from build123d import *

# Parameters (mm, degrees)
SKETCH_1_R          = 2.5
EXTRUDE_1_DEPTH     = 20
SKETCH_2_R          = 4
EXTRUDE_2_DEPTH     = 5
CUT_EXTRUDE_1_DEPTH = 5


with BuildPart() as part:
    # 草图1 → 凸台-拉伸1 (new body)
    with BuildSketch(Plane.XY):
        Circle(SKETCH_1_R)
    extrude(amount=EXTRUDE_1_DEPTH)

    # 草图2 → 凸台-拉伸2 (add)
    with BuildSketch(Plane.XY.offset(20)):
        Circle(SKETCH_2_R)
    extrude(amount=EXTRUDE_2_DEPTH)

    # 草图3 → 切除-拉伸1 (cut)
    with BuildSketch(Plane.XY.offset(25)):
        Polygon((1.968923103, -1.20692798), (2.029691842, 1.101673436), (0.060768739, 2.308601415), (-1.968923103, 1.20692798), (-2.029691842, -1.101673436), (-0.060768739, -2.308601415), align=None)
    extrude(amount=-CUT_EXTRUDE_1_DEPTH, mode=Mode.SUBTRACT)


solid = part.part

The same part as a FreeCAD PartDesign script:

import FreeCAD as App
import Part
import Sketcher
from FreeCAD import Vector

doc = App.newDocument("Part")
body = doc.addObject("PartDesign::Body", "Body")

# Sketch on XY plane
sketch1 = body.newObject("Sketcher::SketchObject", "Sketch")
sketch1.AttachmentSupport = (doc.getObject("XY_Plane"), [""])
sketch1.MapMode = "FlatFace"
sketch1.addGeometry(Part.Circle(Vector(0, 0, 0), Vector(0, 0, 1), 2.5), False)
sketch1.addConstraint([
    Sketcher.Constraint("Coincident", 0, 3, -1, 1),
    Sketcher.Constraint("Diameter", 0, 5.0),
])
pad1 = body.newObject("PartDesign::Pad", "Pad")
pad1.Profile = sketch1
pad1.Length = 20

# Sketch on XY plane
sketch2 = body.newObject("Sketcher::SketchObject", "Sketch001")
sketch2.AttachmentSupport = (doc.getObject("XY_Plane"), [""])
sketch2.MapMode = "FlatFace"
sketch2.AttachmentOffset = App.Placement(Vector(0, 0, 20), App.Rotation())
sketch2.addGeometry(Part.Circle(Vector(0, 0, 0), Vector(0, 0, 1), 4), False)
sketch2.addConstraint([
    Sketcher.Constraint("Coincident", 0, 3, -1, 1),
    Sketcher.Constraint("Diameter", 0, 8.0),
])
pad2 = body.newObject("PartDesign::Pad", "Pad001")
pad2.Profile = sketch2
pad2.Length = 5

# Sketch on XY plane
sketch3 = body.newObject("Sketcher::SketchObject", "Sketch002")
sketch3.AttachmentSupport = (doc.getObject("XY_Plane"), [""])
sketch3.MapMode = "FlatFace"
sketch3.AttachmentOffset = App.Placement(Vector(0, 0, 25), App.Rotation())
sketch3.addGeometry([
    Part.LineSegment(Vector(1.968923, -1.206928, 0), Vector(2.029692, 1.101673, 0)),  # 0
    Part.LineSegment(Vector(2.029692, 1.101673, 0), Vector(0.060769, 2.308601, 0)),  # 1
    Part.LineSegment(Vector(0.060769, 2.308601, 0), Vector(-1.968923, 1.206928, 0)),  # 2
    Part.LineSegment(Vector(-1.968923, 1.206928, 0), Vector(-2.029692, -1.101673, 0)),  # 3
    Part.LineSegment(Vector(-2.029692, -1.101673, 0), Vector(-0.060769, -2.308601, 0)),  # 4
    Part.LineSegment(Vector(-0.060769, -2.308601, 0), Vector(1.968923, -1.206928, 0)),  # 5
], False)
sketch3.addConstraint([
    Sketcher.Constraint("Coincident", 0, 2, 1, 1),
    Sketcher.Constraint("Coincident", 1, 2, 2, 1),
    Sketcher.Constraint("Coincident", 2, 2, 3, 1),
    Sketcher.Constraint("Coincident", 3, 2, 4, 1),
    Sketcher.Constraint("Coincident", 4, 2, 5, 1),
    Sketcher.Constraint("Coincident", 5, 2, 0, 1),
    Sketcher.Constraint("Distance", 0, 2.309401),
    Sketcher.Constraint("Distance", 1, 2.309401),
    Sketcher.Constraint("Distance", 2, 2.309401),
    Sketcher.Constraint("Distance", 3, 2.309401),
    Sketcher.Constraint("Distance", 4, 2.309401),
    Sketcher.Constraint("Distance", 5, 2.309401),
    Sketcher.Constraint("DistanceY", -1, 1, 1, 2, 2.308601),
    Sketcher.Constraint("DistanceY", 4, 2, -1, 1, 2.308601),
    Sketcher.Constraint("DistanceY", 3, 2, 2, 2, 2.308601),
    Sketcher.Constraint("DistanceY", 5, 2, 0, 2, 2.308601),
    Sketcher.Constraint("DistanceX", -1, 1, 0, 2, 2.029692),
    Sketcher.Constraint("DistanceX", -1, 1, 1, 2, 0.060769),
])
pocket1 = body.newObject("PartDesign::Pocket", "Pocket")
pocket1.Profile = sketch3
pocket1.Length = 5

doc.recompute()
